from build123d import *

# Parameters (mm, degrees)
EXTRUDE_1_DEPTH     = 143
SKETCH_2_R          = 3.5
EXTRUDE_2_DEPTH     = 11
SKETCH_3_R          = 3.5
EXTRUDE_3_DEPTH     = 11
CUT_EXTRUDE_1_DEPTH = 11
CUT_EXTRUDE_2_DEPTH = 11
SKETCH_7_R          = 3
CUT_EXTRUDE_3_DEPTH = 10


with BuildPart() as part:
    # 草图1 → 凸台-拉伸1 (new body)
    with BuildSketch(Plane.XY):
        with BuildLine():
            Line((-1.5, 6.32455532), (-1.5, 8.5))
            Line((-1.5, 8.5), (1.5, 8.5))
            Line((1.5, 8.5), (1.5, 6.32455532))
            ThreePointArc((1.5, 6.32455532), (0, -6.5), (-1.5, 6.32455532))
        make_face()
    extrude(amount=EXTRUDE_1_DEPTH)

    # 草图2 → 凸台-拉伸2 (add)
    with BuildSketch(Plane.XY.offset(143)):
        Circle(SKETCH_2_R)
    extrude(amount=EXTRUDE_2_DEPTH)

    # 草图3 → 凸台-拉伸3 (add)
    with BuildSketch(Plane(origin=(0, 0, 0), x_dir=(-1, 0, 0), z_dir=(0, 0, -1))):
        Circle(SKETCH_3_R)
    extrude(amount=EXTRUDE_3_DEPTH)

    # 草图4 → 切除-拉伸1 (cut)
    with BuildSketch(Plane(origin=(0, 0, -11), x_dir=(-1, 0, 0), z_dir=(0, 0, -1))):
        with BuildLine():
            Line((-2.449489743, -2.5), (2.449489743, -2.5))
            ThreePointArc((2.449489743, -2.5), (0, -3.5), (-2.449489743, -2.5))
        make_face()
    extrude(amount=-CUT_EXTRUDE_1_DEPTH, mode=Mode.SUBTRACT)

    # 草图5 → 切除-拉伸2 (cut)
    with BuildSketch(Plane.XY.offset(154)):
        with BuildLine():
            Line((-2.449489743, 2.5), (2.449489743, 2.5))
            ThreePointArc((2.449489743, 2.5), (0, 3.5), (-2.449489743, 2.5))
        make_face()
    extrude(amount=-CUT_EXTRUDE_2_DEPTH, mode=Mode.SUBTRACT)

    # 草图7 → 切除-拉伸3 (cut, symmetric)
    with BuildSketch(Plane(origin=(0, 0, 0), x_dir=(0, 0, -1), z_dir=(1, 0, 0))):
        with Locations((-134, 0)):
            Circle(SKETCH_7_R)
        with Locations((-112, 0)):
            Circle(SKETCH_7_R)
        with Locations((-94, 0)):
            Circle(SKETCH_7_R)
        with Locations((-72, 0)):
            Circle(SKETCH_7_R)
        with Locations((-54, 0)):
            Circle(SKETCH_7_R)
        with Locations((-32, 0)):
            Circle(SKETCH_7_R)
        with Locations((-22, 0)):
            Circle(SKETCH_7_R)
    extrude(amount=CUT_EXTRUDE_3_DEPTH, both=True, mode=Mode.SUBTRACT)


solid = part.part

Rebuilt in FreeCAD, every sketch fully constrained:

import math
import FreeCAD as App
import Part
import Sketcher

V = App.Vector
Q = App.Units.Quantity

doc = App.newDocument("Part")
params = doc.addObject("Spreadsheet::Sheet", "Params")
for row, (alias, value) in enumerate([
    ("sketch1_radius", "6.5 mm"),
    ("sketch1_width", "3 mm"),
    ("pad1_length", "143 mm"),
    ("sketch2_diameter", "7 mm"),
    ("pad2_length", "11 mm"),
    ("sketch3_diameter", "7 mm"),
    ("pad3_length", "11 mm"),
    ("sketch4_radius", "3.5 mm"),
    ("pocket1_length", "11 mm"),
    ("sketch5_radius", "3.5 mm"),
    ("pocket2_length", "11 mm"),
    ("sketch6_diameter", "6 mm"),
    ("pocket3_length", "20 mm"),
], start=1):
    params.set(f"A{row}", alias)
    params.set(f"B{row}", "=" + value)
    params.setAlias(f"B{row}", alias)

body = doc.addObject("PartDesign::Body", "Body")

# Sketch on XY plane
sketch1 = doc.addObject("Sketcher::SketchObject", "Sketch")
body.addObject(sketch1)
sketch1.AttachmentSupport = (doc.XY_Plane, [""])
sketch1.MapMode = "FlatFace"
sketch1.addGeometry([
    Part.LineSegment(V(-1.5, 8.5, 0), V(-1.5, 6.3, 0)),
    Part.ArcOfCircle(Part.Circle(V(0, 0, 0), V(0, 0, 1), 6.5), math.radians(103), math.radians(437)),
    Part.LineSegment(V(1.5, 6.3, 0), V(1.5, 8.5, 0)),
    Part.LineSegment(V(1.5, 8.5, 0), V(-1.5, 8.5, 0)),
], False)
sketch1.addConstraint([
    Sketcher.Constraint("Coincident", 0, 2, 1, 1),
    Sketcher.Constraint("Coincident", 1, 2, 2, 1),
    Sketcher.Constraint("Coincident", 2, 2, 3, 1),
    Sketcher.Constraint("Coincident", 3, 2, 0, 1),
    Sketcher.Constraint("Vertical", 0),
    Sketcher.Constraint("Vertical", 2),
    Sketcher.Constraint("Horizontal", 3),
    Sketcher.Constraint("Coincident", 1, 3, -1, 1),
    Sketcher.Constraint("Horizontal", 0, 2, 1, 2),
    Sketcher.Constraint("Radius", 1, Q("6.5 mm")),
    Sketcher.Constraint("DistanceX", 3, 2, 3, 1, Q("3 mm")),
    Sketcher.Constraint("DistanceY", -1, 1, 2, 2, Q("8.5 mm")),
])
sketch1.setExpression("Constraints[9]", "Params.sketch1_radius")
sketch1.setExpression("Constraints[10]", "Params.sketch1_width")
pad1 = doc.addObject("PartDesign::Pad", "Pad")
body.addObject(pad1)
pad1.Profile = sketch1
pad1.setExpression("Length", "Params.pad1_length")

# Sketch on XY plane
sketch2 = doc.addObject("Sketcher::SketchObject", "Sketch001")
body.addObject(sketch2)
sketch2.AttachmentSupport = (doc.XY_Plane, [""])
sketch2.MapMode = "FlatFace"
sketch2.AttachmentOffset = App.Placement(V(0, 0, 143), App.Rotation())
sketch2.addGeometry(Part.Circle(V(0, 0, 0), V(0, 0, 1), 3.5), False)
sketch2.addConstraint([
    Sketcher.Constraint("Coincident", 0, 3, -1, 1),
    Sketcher.Constraint("Diameter", 0, Q("7 mm")),
])
sketch2.setExpression("Constraints[1]", "Params.sketch2_diameter")
pad2 = doc.addObject("PartDesign::Pad", "Pad001")
body.addObject(pad2)
pad2.Profile = sketch2
pad2.setExpression("Length", "Params.pad2_length")

# Sketch on XY plane
sketch3 = doc.addObject("Sketcher::SketchObject", "Sketch002")
body.addObject(sketch3)
sketch3.AttachmentSupport = (doc.XY_Plane, [""])
sketch3.MapMode = "FlatFace"
sketch3.addGeometry(Part.Circle(V(0, 0, 0), V(0, 0, 1), 3.5), False)
sketch3.addConstraint([
    Sketcher.Constraint("Coincident", 0, 3, -1, 1),
    Sketcher.Constraint("Diameter", 0, Q("7 mm")),
])
sketch3.setExpression("Constraints[1]", "Params.sketch3_diameter")
pad3 = doc.addObject("PartDesign::Pad", "Pad002")
body.addObject(pad3)
pad3.Profile = sketch3
pad3.setExpression("Length", "Params.pad3_length")
pad3.Reversed = True

# Sketch on XY plane
sketch4 = doc.addObject("Sketcher::SketchObject", "Sketch003")
body.addObject(sketch4)
sketch4.AttachmentSupport = (doc.XY_Plane, [""])
sketch4.MapMode = "FlatFace"
sketch4.AttachmentOffset = App.Placement(V(0, 0, -11), App.Rotation())
sketch4.addGeometry([
    Part.LineSegment(V(-2.4, -2.5, 0), V(2.4, -2.5, 0)),
    Part.ArcOfCircle(Part.Circle(V(0, 0, 0), V(0, 0, 1), 3.5), math.radians(-134), math.radians(-46)),
], False)
sketch4.addConstraint([
    Sketcher.Constraint("Coincident", 0, 1, 1, 1),
    Sketcher.Constraint("Coincident", 1, 2, 0, 2),
    Sketcher.Constraint("Horizontal", 0),
    Sketcher.Constraint("Coincident", 1, 3, -1, 1),
    Sketcher.Constraint("Radius", 1, Q("3.5 mm")),
    Sketcher.Constraint("DistanceY", 0, 1, -1, 1, Q("2.5 mm")),
])
sketch4.setExpression("Constraints[4]", "Params.sketch4_radius")
pocket1 = doc.addObject("PartDesign::Pocket", "Pocket")
body.addObject(pocket1)
pocket1.Profile = sketch4
pocket1.setExpression("Length", "Params.pocket1_length")
pocket1.Reversed = True

# Sketch on XY plane
sketch5 = doc.addObject("Sketcher::SketchObject", "Sketch004")
body.addObject(sketch5)
sketch5.AttachmentSupport = (doc.XY_Plane, [""])
sketch5.MapMode = "FlatFace"
sketch5.AttachmentOffset = App.Placement(V(0, 0, 154), App.Rotation())
sketch5.addGeometry([
    Part.LineSegment(V(-2.4, 2.5, 0), V(2.4, 2.5, 0)),
    Part.ArcOfCircle(Part.Circle(V(0, 0, 0), V(0, 0, 1), 3.5), math.radians(46), math.radians(134)),
], False)
sketch5.addConstraint([
    Sketcher.Constraint("Coincident", 0, 1, 1, 2),
    Sketcher.Constraint("Coincident", 1, 1, 0, 2),
    Sketcher.Constraint("Horizontal", 0),
    Sketcher.Constraint("Coincident", 1, 3, -1, 1),
    Sketcher.Constraint("Radius", 1, Q("3.5 mm")),
    Sketcher.Constraint("DistanceY", -1, 1, 0, 1, Q("2.5 mm")),
])
sketch5.setExpression("Constraints[4]", "Params.sketch5_radius")
pocket2 = doc.addObject("PartDesign::Pocket", "Pocket001")
body.addObject(pocket2)
pocket2.Profile = sketch5
pocket2.setExpression("Length", "Params.pocket2_length")

# Sketch on YZ plane
sketch6 = doc.addObject("Sketcher::SketchObject", "Sketch005")
body.addObject(sketch6)
sketch6.AttachmentSupport = (doc.YZ_Plane, [""])
sketch6.MapMode = "FlatFace"
sketch6.addGeometry([
    Part.Circle(V(0, 134, 0), V(0, 0, 1), 3),  # 0
    Part.Circle(V(0, 112, 0), V(0, 0, 1), 3),  # 1
    Part.Circle(V(0, 94, 0), V(0, 0, 1), 3),  # 2
    Part.Circle(V(0, 72, 0), V(0, 0, 1), 3),  # 3
    Part.Circle(V(0, 54, 0), V(0, 0, 1), 3),  # 4
    Part.Circle(V(0, 32, 0), V(0, 0, 1), 3),  # 5
    Part.Circle(V(0, 22, 0), V(0, 0, 1), 3),  # 6
], False)
sketch6.addConstraint([
    Sketcher.Constraint("Equal", 0, 1),
    Sketcher.Constraint("Equal", 1, 2),
    Sketcher.Constraint("Equal", 2, 3),
    Sketcher.Constraint("Equal", 3, 4),
    Sketcher.Constraint("Equal", 4, 5),
    Sketcher.Constraint("Equal", 5, 6),
    Sketcher.Constraint("PointOnObject", 0, 3, -2),
    Sketcher.Constraint("PointOnObject", 1, 3, -2),
    Sketcher.Constraint("PointOnObject", 2, 3, -2),
    Sketcher.Constraint("PointOnObject", 3, 3, -2),
    Sketcher.Constraint("PointOnObject", 4, 3, -2),
    Sketcher.Constraint("PointOnObject", 5, 3, -2),
    Sketcher.Constraint("PointOnObject", 6, 3, -2),
    Sketcher.Constraint("Diameter", 0, Q("6 mm")),
    Sketcher.Constraint("DistanceY", -1, 1, 0, 3, Q("134 mm")),
    Sketcher.Constraint("DistanceY", -1, 1, 1, 3, Q("112 mm")),
    Sketcher.Constraint("DistanceY", -1, 1, 2, 3, Q("94 mm")),
    Sketcher.Constraint("DistanceY", -1, 1, 3, 3, Q("72 mm")),
    Sketcher.Constraint("DistanceY", -1, 1, 4, 3, Q("54 mm")),
    Sketcher.Constraint("DistanceY", -1, 1, 5, 3, Q("32 mm")),
    Sketcher.Constraint("DistanceY", -1, 1, 6, 3, Q("22 mm")),
])
sketch6.setExpression("Constraints[13]", "Params.sketch6_diameter")
pocket3 = doc.addObject("PartDesign::Pocket", "Pocket002")
body.addObject(pocket3)
pocket3.Profile = sketch6
pocket3.setExpression("Length", "Params.pocket3_length")
pocket3.Midplane = True

doc.recompute()
